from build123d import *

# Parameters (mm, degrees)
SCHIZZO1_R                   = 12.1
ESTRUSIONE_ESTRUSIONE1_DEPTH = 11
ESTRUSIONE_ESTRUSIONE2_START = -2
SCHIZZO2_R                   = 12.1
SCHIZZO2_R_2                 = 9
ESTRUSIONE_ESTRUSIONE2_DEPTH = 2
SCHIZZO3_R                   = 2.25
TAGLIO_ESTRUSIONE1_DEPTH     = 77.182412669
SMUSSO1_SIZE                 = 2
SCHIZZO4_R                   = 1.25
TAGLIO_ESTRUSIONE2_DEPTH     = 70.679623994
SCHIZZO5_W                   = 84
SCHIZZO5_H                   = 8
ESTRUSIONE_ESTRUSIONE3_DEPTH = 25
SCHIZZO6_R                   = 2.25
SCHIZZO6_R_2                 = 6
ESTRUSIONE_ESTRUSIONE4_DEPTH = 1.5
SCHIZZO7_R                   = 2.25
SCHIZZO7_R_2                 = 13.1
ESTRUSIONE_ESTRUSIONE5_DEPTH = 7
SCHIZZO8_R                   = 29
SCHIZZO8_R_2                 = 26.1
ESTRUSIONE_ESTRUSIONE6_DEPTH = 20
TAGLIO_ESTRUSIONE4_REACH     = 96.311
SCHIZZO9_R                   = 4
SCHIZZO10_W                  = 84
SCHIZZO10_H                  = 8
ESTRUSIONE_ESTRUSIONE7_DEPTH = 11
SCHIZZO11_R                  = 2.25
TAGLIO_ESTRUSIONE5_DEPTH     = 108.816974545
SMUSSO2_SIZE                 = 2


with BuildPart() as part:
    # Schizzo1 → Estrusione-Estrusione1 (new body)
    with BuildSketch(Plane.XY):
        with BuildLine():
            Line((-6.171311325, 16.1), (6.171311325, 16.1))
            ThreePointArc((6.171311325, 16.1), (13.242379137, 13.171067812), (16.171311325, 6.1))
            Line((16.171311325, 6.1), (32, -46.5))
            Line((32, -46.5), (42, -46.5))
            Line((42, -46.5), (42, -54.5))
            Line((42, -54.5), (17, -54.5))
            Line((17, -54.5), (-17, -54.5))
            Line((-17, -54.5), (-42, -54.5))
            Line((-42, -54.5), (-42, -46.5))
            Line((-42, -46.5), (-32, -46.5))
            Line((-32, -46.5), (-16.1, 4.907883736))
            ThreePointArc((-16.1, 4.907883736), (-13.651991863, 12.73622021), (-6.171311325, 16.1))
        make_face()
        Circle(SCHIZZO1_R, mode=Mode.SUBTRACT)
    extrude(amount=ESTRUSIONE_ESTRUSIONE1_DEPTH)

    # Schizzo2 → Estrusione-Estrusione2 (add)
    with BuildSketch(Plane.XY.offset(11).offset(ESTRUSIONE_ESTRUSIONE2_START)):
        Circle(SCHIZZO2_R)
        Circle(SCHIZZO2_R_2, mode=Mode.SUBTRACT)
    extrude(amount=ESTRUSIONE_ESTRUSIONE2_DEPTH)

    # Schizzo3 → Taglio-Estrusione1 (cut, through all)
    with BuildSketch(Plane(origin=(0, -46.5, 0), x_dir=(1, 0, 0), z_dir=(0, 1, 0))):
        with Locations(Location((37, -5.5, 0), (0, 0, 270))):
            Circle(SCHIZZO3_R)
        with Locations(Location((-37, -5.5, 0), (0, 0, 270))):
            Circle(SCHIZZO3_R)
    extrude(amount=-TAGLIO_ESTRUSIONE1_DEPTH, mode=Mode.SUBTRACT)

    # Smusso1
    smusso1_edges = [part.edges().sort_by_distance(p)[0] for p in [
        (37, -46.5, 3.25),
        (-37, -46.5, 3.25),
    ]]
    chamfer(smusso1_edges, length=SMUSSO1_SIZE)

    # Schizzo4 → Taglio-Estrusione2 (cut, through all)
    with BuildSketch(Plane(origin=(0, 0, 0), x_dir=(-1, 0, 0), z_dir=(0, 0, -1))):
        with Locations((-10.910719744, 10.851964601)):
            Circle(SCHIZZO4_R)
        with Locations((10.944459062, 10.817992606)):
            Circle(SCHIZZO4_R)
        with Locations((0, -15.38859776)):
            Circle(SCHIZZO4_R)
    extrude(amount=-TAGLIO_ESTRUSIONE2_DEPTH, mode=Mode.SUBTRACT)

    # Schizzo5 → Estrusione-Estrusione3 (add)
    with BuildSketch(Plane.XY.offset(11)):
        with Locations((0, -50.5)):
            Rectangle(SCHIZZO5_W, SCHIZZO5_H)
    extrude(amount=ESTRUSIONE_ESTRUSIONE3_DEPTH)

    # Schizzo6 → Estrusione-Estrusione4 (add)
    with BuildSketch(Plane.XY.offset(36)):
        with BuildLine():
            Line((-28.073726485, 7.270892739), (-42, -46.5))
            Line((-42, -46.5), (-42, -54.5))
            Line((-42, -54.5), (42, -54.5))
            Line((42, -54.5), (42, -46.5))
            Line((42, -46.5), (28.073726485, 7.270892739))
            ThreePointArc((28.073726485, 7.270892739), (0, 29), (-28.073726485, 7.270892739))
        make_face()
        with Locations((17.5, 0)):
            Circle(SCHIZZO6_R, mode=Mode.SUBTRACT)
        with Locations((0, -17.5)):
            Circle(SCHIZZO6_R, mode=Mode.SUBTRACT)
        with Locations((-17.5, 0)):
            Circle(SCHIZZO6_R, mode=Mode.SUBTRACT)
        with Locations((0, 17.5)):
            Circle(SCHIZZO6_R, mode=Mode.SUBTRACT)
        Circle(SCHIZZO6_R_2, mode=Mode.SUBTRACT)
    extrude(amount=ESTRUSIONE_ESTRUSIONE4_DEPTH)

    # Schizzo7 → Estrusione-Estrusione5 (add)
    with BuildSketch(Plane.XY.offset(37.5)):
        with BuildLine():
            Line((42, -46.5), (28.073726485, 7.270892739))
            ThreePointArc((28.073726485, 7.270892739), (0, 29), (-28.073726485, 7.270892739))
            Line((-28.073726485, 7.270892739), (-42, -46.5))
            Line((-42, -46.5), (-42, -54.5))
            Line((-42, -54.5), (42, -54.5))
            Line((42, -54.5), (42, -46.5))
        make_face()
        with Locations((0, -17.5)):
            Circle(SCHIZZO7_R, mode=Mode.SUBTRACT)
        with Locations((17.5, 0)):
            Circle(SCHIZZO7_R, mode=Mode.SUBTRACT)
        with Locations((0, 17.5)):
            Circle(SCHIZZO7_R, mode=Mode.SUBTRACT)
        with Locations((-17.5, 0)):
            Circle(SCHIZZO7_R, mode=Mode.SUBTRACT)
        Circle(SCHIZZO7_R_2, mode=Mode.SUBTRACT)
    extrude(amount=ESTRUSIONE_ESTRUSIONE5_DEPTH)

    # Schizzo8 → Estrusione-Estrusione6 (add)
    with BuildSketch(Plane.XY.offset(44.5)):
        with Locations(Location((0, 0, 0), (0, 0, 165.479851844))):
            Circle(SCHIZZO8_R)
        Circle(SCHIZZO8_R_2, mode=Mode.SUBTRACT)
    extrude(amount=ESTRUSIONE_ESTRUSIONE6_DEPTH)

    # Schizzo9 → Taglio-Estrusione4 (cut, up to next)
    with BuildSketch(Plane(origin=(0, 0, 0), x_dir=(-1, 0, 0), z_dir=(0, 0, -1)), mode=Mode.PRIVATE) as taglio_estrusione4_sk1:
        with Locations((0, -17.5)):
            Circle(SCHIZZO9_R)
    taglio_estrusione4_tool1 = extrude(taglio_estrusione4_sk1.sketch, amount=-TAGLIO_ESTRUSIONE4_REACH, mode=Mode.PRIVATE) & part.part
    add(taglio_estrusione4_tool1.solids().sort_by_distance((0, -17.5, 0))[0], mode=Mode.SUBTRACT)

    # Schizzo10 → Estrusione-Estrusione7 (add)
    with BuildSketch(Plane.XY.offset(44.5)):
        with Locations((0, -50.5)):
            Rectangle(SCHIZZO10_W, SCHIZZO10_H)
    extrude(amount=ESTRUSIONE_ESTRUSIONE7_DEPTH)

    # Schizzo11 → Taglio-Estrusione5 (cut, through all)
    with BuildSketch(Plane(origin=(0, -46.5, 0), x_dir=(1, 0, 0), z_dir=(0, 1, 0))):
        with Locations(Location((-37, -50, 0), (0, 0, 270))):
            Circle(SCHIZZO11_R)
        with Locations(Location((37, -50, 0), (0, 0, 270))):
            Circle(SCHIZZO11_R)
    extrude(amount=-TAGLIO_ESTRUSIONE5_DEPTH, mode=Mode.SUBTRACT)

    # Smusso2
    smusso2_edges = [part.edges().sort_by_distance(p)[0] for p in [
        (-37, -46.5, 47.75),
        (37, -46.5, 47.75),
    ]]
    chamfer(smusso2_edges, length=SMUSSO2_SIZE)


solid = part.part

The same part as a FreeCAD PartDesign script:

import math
import FreeCAD as App
import Part
import Sketcher
from FreeCAD import Vector


def edges_at(feature, points):
    """Names of the edges that pass closest to the given points."""
    edges = feature.Shape.Edges
    near = lambda p: min(range(len(edges)), key=lambda i: edges[i].distToShape(Part.Vertex(*p))[0])
    return sorted({f"Edge{near(p) + 1}" for p in points})


def add_polygon(sketch, points):
    """Adds a closed chain of lines whose ends are joined by coincident constraints."""
    first, n = sketch.GeometryCount, len(points)
    for a, b in zip(points, points[1:] + points[:1]):
        sketch.addGeometry(Part.LineSegment(App.Vector(*a, 0), App.Vector(*b, 0)), False)
    for i in range(n):
        sketch.addConstraint(Sketcher.Constraint("Coincident", first + i, 2, first + (i + 1) % n, 1))

doc = App.newDocument("Part")
body = doc.addObject("PartDesign::Body", "Body")

sketch1 = body.newObject("Sketcher::SketchObject", "Sketch")
sketch1.AttachmentSupport = (doc.getObject("XY_Plane"), [""])
sketch1.MapMode = "FlatFace"
sketch1.addGeometry([
    Part.LineSegment(Vector(6, 16, 0), Vector(-6, 16, 0)),
    Part.ArcOfCircle(Part.Circle(Vector(-6, 6, 0), Vector(0, 0, 1), 10), math.radians(90), math.radians(187)),
    Part.LineSegment(Vector(-16, 5, 0), Vector(-32, -46, 0)),
    Part.LineSegment(Vector(-32, -46, 0), Vector(-42, -46, 0)),
    Part.LineSegment(Vector(-42, -46, 0), Vector(-42, -54, 0)),
    Part.LineSegment(Vector(-42, -54, 0), Vector(42, -54, 0)),
    Part.LineSegment(Vector(42, -54, 0), Vector(42, -46, 0)),
    Part.LineSegment(Vector(42, -46, 0), Vector(32, -46, 0)),
    Part.LineSegment(Vector(32, -46, 0), Vector(16, 6, 0)),
    Part.ArcOfCircle(Part.Circle(Vector(6, 6, 0), Vector(0, 0, 1), 10), math.radians(0), math.radians(90)),
    Part.Circle(Vector(0, 0, 0), Vector(0, 0, 1), 12),
], False)
sketch1.addConstraint([
    Sketcher.Constraint("Tangent", 0, 2, 1, 1),
    Sketcher.Constraint("Coincident", 1, 2, 2, 1),
    Sketcher.Constraint("Coincident", 2, 2, 3, 1),
    Sketcher.Constraint("Coincident", 3, 2, 4, 1),
    Sketcher.Constraint("Coincident", 4, 2, 5, 1),
    Sketcher.Constraint("Coincident", 5, 2, 6, 1),
    Sketcher.Constraint("Coincident", 6, 2, 7, 1),
    Sketcher.Constraint("Coincident", 7, 2, 8, 1),
    Sketcher.Constraint("Coincident", 8, 2, 9, 1),
    Sketcher.Constraint("Tangent", 9, 2, 0, 1),
    Sketcher.Constraint("Horizontal", 0),
    Sketcher.Constraint("Horizontal", 3),
    Sketcher.Constraint("Vertical", 4),
    Sketcher.Constraint("Horizontal", 5),
    Sketcher.Constraint("Vertical", 6),
    Sketcher.Constraint("Horizontal", 7),
    Sketcher.Constraint("Coincident", 10, 3, -1, 1),
    Sketcher.Constraint("Equal", 1, 9),
    Sketcher.Constraint("Symmetric", 3, 2, 6, 2, -2),
    Sketcher.Constraint("Horizontal", 9, 3, 8, 2),
    Sketcher.Constraint("Equal", 3, 7),
    Sketcher.Constraint("Radius", 1, 10.0),
    Sketcher.Constraint("Diameter", 10, 24.2),
    Sketcher.Constraint("DistanceX", 3, 2, 3, 1, 10.0),
    Sketcher.Constraint("DistanceX", 5, 1, 5, 2, 84.0),
    Sketcher.Constraint("DistanceY", 4, 2, 4, 1, 8.0),
    Sketcher.Constraint("DistanceY", -1, 1, 1, 3, 6.1),
    Sketcher.Constraint("DistanceX", 1, 2, -1, 1, 16.1),
    Sketcher.Constraint("DistanceY", 2, 2, -1, 1, 46.5),
    Sketcher.Constraint("Distance", 2, 53.810598),
    Sketcher.Constraint("DistanceX", 0, 2, 0, 1, 12.342623),
])
pad1 = body.newObject("PartDesign::Pad", "Pad")
pad1.Profile = sketch1
pad1.Length = 11

sketch2 = body.newObject("Sketcher::SketchObject", "Sketch001")
sketch2.AttachmentSupport = (doc.getObject("XY_Plane"), [""])
sketch2.MapMode = "FlatFace"
sketch2.AttachmentOffset = App.Placement(Vector(0, 0, 9), App.Rotation())
sketch2.addGeometry([
    Part.Circle(Vector(0, 0, 0), Vector(0, 0, 1), 12),
    Part.Circle(Vector(0, 0, 0), Vector(0, 0, 1), 9),
], False)
sketch2.addConstraint([
    Sketcher.Constraint("Coincident", 0, 3, -1, 1),
    Sketcher.Constraint("Coincident", 1, 3, -1, 1),
    Sketcher.Constraint("Diameter", 1, 18.0),
    Sketcher.Constraint("Diameter", 0, 24.2),
])
pad2 = body.newObject("PartDesign::Pad", "Pad001")
pad2.Profile = sketch2
pad2.Length = 2

sketch3 = body.newObject("Sketcher::SketchObject", "Sketch002")
sketch3.AttachmentSupport = (doc.getObject("XZ_Plane"), [""])
sketch3.MapMode = "FlatFace"
sketch3.AttachmentOffset = App.Placement(Vector(0, 0, 46.5), App.Rotation())
sketch3.addGeometry([
    Part.Circle(Vector(37, 5.5, 0), Vector(0, 0, 1), 2.2),
    Part.Circle(Vector(-37, 5.5, 0), Vector(0, 0, 1), 2.2),
], False)
sketch3.addConstraint([
    Sketcher.Constraint("Equal", 0, 1),
    Sketcher.Constraint("Symmetric", 0, 3, 1, 3, -2),
    Sketcher.Constraint("Diameter", 0, 4.5),
    Sketcher.Constraint("DistanceX", -1, 1, 0, 3, 37.0),
    Sketcher.Constraint("DistanceY", -1, 1, 0, 3, 5.5),
])
pocket1 = body.newObject("PartDesign::Pocket", "Pocket")
pocket1.Profile = sketch3
pocket1.Type = "ThroughAll"
pocket1.Reversed = True
doc.recompute()

chamfer = body.newObject("PartDesign::Chamfer", "Chamfer")
chamfer.Base = (pocket1, edges_at(pocket1, [(37, -46.5, 3.25), (-37, -46.5, 3.25)]))
chamfer.Size = 2

sketch4 = body.newObject("Sketcher::SketchObject", "Sketch003")
sketch4.AttachmentSupport = (doc.getObject("XY_Plane"), [""])
sketch4.MapMode = "FlatFace"
sketch4.addGeometry([
    Part.Circle(Vector(10.9, 10.9, 0), Vector(0, 0, 1), 1.2),
    Part.Circle(Vector(-10.9, 10.8, 0), Vector(0, 0, 1), 1.2),
    Part.Circle(Vector(0, -15.4, 0), Vector(0, 0, 1), 1.2),
], False)
sketch4.addConstraint([
    Sketcher.Constraint("Equal", 0, 1),
    Sketcher.Constraint("Equal", 1, 2),
    Sketcher.Constraint("PointOnObject", 2, 3, -2),
    Sketcher.Constraint("Diameter", 0, 2.5),
    Sketcher.Constraint("DistanceX", -1, 1, 0, 3, 10.91072),
    Sketcher.Constraint("DistanceX", 1, 3, -1, 1, 10.944459),
    Sketcher.Constraint("DistanceY", 1, 3, 0, 3, 0.033972),
    Sketcher.Constraint("DistanceY", 2, 3, 1, 3, 26.20659),
    Sketcher.Constraint("DistanceY", -1, 1, 0, 3, 10.851965),
])
pocket2 = body.newObject("PartDesign::Pocket", "Pocket001")
pocket2.Profile = sketch4
pocket2.Type = "ThroughAll"
pocket2.Reversed = True

sketch5 = body.newObject("Sketcher::SketchObject", "Sketch004")
sketch5.AttachmentSupport = (doc.getObject("XY_Plane"), [""])
sketch5.MapMode = "FlatFace"
sketch5.AttachmentOffset = App.Placement(Vector(0, 0, 11), App.Rotation())
add_polygon(sketch5, [(-42, -46), (-42, -54), (42, -54), (42, -46)])
sketch5.addConstraint([
    Sketcher.Constraint("Vertical", 0),
    Sketcher.Constraint("Horizontal", 1),
    Sketcher.Constraint("Vertical", 2),
    Sketcher.Constraint("Horizontal", 3),
    Sketcher.Constraint("DistanceX", 1, 1, 1, 2, 84.0),
    Sketcher.Constraint("DistanceY", 0, 2, 0, 1, 8.0),
    Sketcher.Constraint("DistanceX", 0, 2, -1, 1, 42.0),
    Sketcher.Constraint("DistanceY", 0, 2, -1, 1, 54.5),
])
pad3 = body.newObject("PartDesign::Pad", "Pad002")
pad3.Profile = sketch5
pad3.Length = 25

sketch6 = body.newObject("Sketcher::SketchObject", "Sketch005")
sketch6.AttachmentSupport = (doc.getObject("XY_Plane"), [""])
sketch6.MapMode = "FlatFace"
sketch6.AttachmentOffset = App.Placement(Vector(0, 0, 36), App.Rotation())
sketch6.addGeometry([
    Part.LineSegment(Vector(-28.1, 7.3, 0), Vector(-42, -46.5, 0)),
    Part.LineSegment(Vector(-42, -46.5, 0), Vector(-42, -54.5, 0)),
    Part.LineSegment(Vector(-42, -54.5, 0), Vector(42, -54.5, 0)),
    Part.LineSegment(Vector(42, -54.5, 0), Vector(42, -46.5, 0)),
    Part.LineSegment(Vector(42, -46.5, 0), Vector(28.1, 7.3, 0)),
    Part.ArcOfCircle(Part.Circle(Vector(0, 0, 0), Vector(0, 0, 1), 29), math.radians(15), math.radians(165)),
    Part.Circle(Vector(0, -17.5, 0), Vector(0, 0, 1), 2.2),
    Part.Circle(Vector(-17.5, 0, 0), Vector(0, 0, 1), 2.2),
    Part.Circle(Vector(0, 0, 0), Vector(0, 0, 1), 6),
    Part.Circle(Vector(17.5, 0, 0), Vector(0, 0, 1), 2.2),
    Part.Circle(Vector(0, 17.5, 0), Vector(0, 0, 1), 2.2),
], False)
sketch6.addConstraint([
    Sketcher.Constraint("Coincident", 0, 2, 1, 1),
    Sketcher.Constraint("Coincident", 1, 2, 2, 1),
    Sketcher.Constraint("Coincident", 2, 2, 3, 1),
    Sketcher.Constraint("Coincident", 3, 2, 4, 1),
    Sketcher.Constraint("Tangent", 4, 2, 5, 1),
    Sketcher.Constraint("Tangent", 5, 2, 0, 1),
    Sketcher.Constraint("Vertical", 1),
    Sketcher.Constraint("Horizontal", 2),
    Sketcher.Constraint("Vertical", 3),
    Sketcher.Constraint("Coincident", 5, 3, -1, 1),
    Sketcher.Constraint("Coincident", 8, 3, -1, 1),
    Sketcher.Constraint("Equal", 6, 7),
    Sketcher.Constraint("Equal", 7, 9),
    Sketcher.Constraint("Equal", 9, 10),
    Sketcher.Constraint("Symmetric", 7, 3, 9, 3, -1, 1),
    Sketcher.Constraint("Symmetric", 6, 3, 10, 3, -1, 1),
    Sketcher.Constraint("Symmetric", 0, 2, 3, 2, -2),
    Sketcher.Constraint("PointOnObject", 6, 3, -2),
    Sketcher.Constraint("PointOnObject", 7, 3, -1),
    Sketcher.Constraint("Diameter", 8, 12.0),
    Sketcher.Constraint("Radius", 5, 29.0),
    Sketcher.Constraint("Diameter", 6, 4.5),
    Sketcher.Constraint("DistanceX", 2, 1, 2, 2, 84.0),
    Sketcher.Constraint("DistanceY", 1, 2, 1, 1, 8.0),
    Sketcher.Constraint("DistanceX", 7, 3, 9, 3, 35.0),
    Sketcher.Constraint("DistanceY", 6, 3, 10, 3, 35.0),
    Sketcher.Constraint("DistanceY", 0, 2, 6, 3, 29.0),
])
pad4 = body.newObject("PartDesign::Pad", "Pad003")
pad4.Profile = sketch6
pad4.Length = 1.5

sketch7 = body.newObject("Sketcher::SketchObject", "Sketch006")
sketch7.AttachmentSupport = (doc.getObject("XY_Plane"), [""])
sketch7.MapMode = "FlatFace"
sketch7.AttachmentOffset = App.Placement(Vector(0, 0, 37.5), App.Rotation())
sketch7.addGeometry([
    Part.LineSegment(Vector(42, -46.5, 0), Vector(28.1, 7.3, 0)),
    Part.ArcOfCircle(Part.Circle(Vector(0, 0, 0), Vector(0, 0, 1), 29), math.radians(15), math.radians(165)),
    Part.LineSegment(Vector(-28.1, 7.3, 0), Vector(-42, -46.5, 0)),
    Part.LineSegment(Vector(-42, -46.5, 0), Vector(-42, -54.5, 0)),
    Part.LineSegment(Vector(-42, -54.5, 0), Vector(42, -54.5, 0)),
    Part.LineSegment(Vector(42, -54.5, 0), Vector(42, -46.5, 0)),
    Part.Circle(Vector(0, -17.5, 0), Vector(0, 0, 1), 2.2),
    Part.Circle(Vector(-17.5, 0, 0), Vector(0, 0, 1), 2.2),
    Part.Circle(Vector(0, 0, 0), Vector(0, 0, 1), 13.1),
    Part.Circle(Vector(17.5, 0, 0), Vector(0, 0, 1), 2.2),
    Part.Circle(Vector(0, 17.5, 0), Vector(0, 0, 1), 2.2),
], False)
sketch7.addConstraint([
    Sketcher.Constraint("Tangent", 0, 2, 1, 1),
    Sketcher.Constraint("Tangent", 1, 2, 2, 1),
    Sketcher.Constraint("Coincident", 2, 2, 3, 1),
    Sketcher.Constraint("Coincident", 3, 2, 4, 1),
    Sketcher.Constraint("Coincident", 4, 2, 5, 1),
    Sketcher.Constraint("Coincident", 5, 2, 0, 1),
    Sketcher.Constraint("Vertical", 3),
    Sketcher.Constraint("Horizontal", 4),
    Sketcher.Constraint("Vertical", 5),
    Sketcher.Constraint("Coincident", 1, 3, -1, 1),
    Sketcher.Constraint("Coincident", 8, 3, -1, 1),
    Sketcher.Constraint("Equal", 6, 7),
    Sketcher.Constraint("Equal", 7, 9),
    Sketcher.Constraint("Equal", 9, 10),
    Sketcher.Constraint("Symmetric", 7, 3, 9, 3, -1, 1),
    Sketcher.Constraint("Symmetric", 6, 3, 10, 3, -1, 1),
    Sketcher.Constraint("Symmetric", 2, 2, 5, 2, -2),
    Sketcher.Constraint("PointOnObject", 6, 3, -2),
    Sketcher.Constraint("PointOnObject", 7, 3, -1),
    Sketcher.Constraint("Radius", 1, 29.0),
    Sketcher.Constraint("Diameter", 6, 4.5),
    Sketcher.Constraint("Diameter", 8, 26.2),
    Sketcher.Constraint("DistanceX", 4, 1, 4, 2, 84.0),
    Sketcher.Constraint("DistanceY", 3, 2, 3, 1, 8.0),
    Sketcher.Constraint("DistanceX", 7, 3, 9, 3, 35.0),
    Sketcher.Constraint("DistanceY", 6, 3, 10, 3, 35.0),
    Sketcher.Constraint("DistanceY", 2, 2, 6, 3, 29.0),
])
pad5 = body.newObject("PartDesign::Pad", "Pad004")
pad5.Profile = sketch7
pad5.Length = 7

sketch8 = body.newObject("Sketcher::SketchObject", "Sketch007")
sketch8.AttachmentSupport = (doc.getObject("XY_Plane"), [""])
sketch8.MapMode = "FlatFace"
sketch8.AttachmentOffset = App.Placement(Vector(0, 0, 44.5), App.Rotation())
sketch8.addGeometry([
    Part.Circle(Vector(0, 0, 0), Vector(0, 0, 1), 29),
    Part.Circle(Vector(0, 0, 0), Vector(0, 0, 1), 26),
], False)
sketch8.addConstraint([
    Sketcher.Constraint("Coincident", 0, 3, -1, 1),
    Sketcher.Constraint("Coincident", 1, 3, -1, 1),
    Sketcher.Constraint("Diameter", 0, 58.0),
    Sketcher.Constraint("Diameter", 1, 52.2),
])
pad6 = body.newObject("PartDesign::Pad", "Pad005")
pad6.Profile = sketch8
pad6.Length = 20

sketch9 = body.newObject("Sketcher::SketchObject", "Sketch008")
sketch9.AttachmentSupport = (doc.getObject("XY_Plane"), [""])
sketch9.MapMode = "FlatFace"
sketch9.addGeometry(Part.Circle(Vector(0, -17.5, 0), Vector(0, 0, 1), 4), False)
sketch9.addConstraint([
    Sketcher.Constraint("PointOnObject", 0, 3, -2),
    Sketcher.Constraint("Diameter", 0, 8.0),
    Sketcher.Constraint("DistanceY", 0, 3, -1, 1, 17.5),
])
pocket3 = body.newObject("PartDesign::Pocket", "Pocket002")
pocket3.Profile = sketch9
pocket3.Type = "UpToFirst"
pocket3.Reversed = True

sketch10 = body.newObject("Sketcher::SketchObject", "Sketch009")
sketch10.AttachmentSupport = (doc.getObject("XY_Plane"), [""])
sketch10.MapMode = "FlatFace"
sketch10.AttachmentOffset = App.Placement(Vector(0, 0, 44.5), App.Rotation())
add_polygon(sketch10, [(-42, -46), (-42, -54), (42, -54), (42, -46)])
sketch10.addConstraint([
    Sketcher.Constraint("Vertical", 0),
    Sketcher.Constraint("Horizontal", 1),
    Sketcher.Constraint("Vertical", 2),
    Sketcher.Constraint("Horizontal", 3),
    Sketcher.Constraint("DistanceX", 1, 1, 1, 2, 84.0),
    Sketcher.Constraint("DistanceY", 0, 2, 0, 1, 8.0),
    Sketcher.Constraint("DistanceX", 0, 2, -1, 1, 42.0),
    Sketcher.Constraint("DistanceY", 0, 2, -1, 1, 54.5),
])
pad7 = body.newObject("PartDesign::Pad", "Pad006")
pad7.Profile = sketch10
pad7.Length = 11

sketch11 = body.newObject("Sketcher::SketchObject", "Sketch010")
sketch11.AttachmentSupport = (doc.getObject("XZ_Plane"), [""])
sketch11.MapMode = "FlatFace"
sketch11.AttachmentOffset = App.Placement(Vector(0, 0, 46.5), App.Rotation())
sketch11.addGeometry([
    Part.Circle(Vector(-37, 50, 0), Vector(0, 0, 1), 2.2),
    Part.Circle(Vector(37, 50, 0), Vector(0, 0, 1), 2.2),
], False)
sketch11.addConstraint([
    Sketcher.Constraint("Equal", 0, 1),
    Sketcher.Constraint("Symmetric", 0, 3, 1, 3, -2),
    Sketcher.Constraint("Diameter", 0, 4.5),
    Sketcher.Constraint("DistanceX", 0, 3, -1, 1, 37.0),
    Sketcher.Constraint("DistanceY", -1, 1, 0, 3, 50.0),
])
pocket4 = body.newObject("PartDesign::Pocket", "Pocket003")
pocket4.Profile = sketch11
pocket4.Type = "ThroughAll"
pocket4.Reversed = True
doc.recompute()

chamfer2 = body.newObject("PartDesign::Chamfer", "Chamfer001")
chamfer2.Base = (pocket4, edges_at(pocket4, [(-37, -46.5, 47.75), (37, -46.5, 47.75)]))
chamfer2.Size = 2

doc.recompute()
